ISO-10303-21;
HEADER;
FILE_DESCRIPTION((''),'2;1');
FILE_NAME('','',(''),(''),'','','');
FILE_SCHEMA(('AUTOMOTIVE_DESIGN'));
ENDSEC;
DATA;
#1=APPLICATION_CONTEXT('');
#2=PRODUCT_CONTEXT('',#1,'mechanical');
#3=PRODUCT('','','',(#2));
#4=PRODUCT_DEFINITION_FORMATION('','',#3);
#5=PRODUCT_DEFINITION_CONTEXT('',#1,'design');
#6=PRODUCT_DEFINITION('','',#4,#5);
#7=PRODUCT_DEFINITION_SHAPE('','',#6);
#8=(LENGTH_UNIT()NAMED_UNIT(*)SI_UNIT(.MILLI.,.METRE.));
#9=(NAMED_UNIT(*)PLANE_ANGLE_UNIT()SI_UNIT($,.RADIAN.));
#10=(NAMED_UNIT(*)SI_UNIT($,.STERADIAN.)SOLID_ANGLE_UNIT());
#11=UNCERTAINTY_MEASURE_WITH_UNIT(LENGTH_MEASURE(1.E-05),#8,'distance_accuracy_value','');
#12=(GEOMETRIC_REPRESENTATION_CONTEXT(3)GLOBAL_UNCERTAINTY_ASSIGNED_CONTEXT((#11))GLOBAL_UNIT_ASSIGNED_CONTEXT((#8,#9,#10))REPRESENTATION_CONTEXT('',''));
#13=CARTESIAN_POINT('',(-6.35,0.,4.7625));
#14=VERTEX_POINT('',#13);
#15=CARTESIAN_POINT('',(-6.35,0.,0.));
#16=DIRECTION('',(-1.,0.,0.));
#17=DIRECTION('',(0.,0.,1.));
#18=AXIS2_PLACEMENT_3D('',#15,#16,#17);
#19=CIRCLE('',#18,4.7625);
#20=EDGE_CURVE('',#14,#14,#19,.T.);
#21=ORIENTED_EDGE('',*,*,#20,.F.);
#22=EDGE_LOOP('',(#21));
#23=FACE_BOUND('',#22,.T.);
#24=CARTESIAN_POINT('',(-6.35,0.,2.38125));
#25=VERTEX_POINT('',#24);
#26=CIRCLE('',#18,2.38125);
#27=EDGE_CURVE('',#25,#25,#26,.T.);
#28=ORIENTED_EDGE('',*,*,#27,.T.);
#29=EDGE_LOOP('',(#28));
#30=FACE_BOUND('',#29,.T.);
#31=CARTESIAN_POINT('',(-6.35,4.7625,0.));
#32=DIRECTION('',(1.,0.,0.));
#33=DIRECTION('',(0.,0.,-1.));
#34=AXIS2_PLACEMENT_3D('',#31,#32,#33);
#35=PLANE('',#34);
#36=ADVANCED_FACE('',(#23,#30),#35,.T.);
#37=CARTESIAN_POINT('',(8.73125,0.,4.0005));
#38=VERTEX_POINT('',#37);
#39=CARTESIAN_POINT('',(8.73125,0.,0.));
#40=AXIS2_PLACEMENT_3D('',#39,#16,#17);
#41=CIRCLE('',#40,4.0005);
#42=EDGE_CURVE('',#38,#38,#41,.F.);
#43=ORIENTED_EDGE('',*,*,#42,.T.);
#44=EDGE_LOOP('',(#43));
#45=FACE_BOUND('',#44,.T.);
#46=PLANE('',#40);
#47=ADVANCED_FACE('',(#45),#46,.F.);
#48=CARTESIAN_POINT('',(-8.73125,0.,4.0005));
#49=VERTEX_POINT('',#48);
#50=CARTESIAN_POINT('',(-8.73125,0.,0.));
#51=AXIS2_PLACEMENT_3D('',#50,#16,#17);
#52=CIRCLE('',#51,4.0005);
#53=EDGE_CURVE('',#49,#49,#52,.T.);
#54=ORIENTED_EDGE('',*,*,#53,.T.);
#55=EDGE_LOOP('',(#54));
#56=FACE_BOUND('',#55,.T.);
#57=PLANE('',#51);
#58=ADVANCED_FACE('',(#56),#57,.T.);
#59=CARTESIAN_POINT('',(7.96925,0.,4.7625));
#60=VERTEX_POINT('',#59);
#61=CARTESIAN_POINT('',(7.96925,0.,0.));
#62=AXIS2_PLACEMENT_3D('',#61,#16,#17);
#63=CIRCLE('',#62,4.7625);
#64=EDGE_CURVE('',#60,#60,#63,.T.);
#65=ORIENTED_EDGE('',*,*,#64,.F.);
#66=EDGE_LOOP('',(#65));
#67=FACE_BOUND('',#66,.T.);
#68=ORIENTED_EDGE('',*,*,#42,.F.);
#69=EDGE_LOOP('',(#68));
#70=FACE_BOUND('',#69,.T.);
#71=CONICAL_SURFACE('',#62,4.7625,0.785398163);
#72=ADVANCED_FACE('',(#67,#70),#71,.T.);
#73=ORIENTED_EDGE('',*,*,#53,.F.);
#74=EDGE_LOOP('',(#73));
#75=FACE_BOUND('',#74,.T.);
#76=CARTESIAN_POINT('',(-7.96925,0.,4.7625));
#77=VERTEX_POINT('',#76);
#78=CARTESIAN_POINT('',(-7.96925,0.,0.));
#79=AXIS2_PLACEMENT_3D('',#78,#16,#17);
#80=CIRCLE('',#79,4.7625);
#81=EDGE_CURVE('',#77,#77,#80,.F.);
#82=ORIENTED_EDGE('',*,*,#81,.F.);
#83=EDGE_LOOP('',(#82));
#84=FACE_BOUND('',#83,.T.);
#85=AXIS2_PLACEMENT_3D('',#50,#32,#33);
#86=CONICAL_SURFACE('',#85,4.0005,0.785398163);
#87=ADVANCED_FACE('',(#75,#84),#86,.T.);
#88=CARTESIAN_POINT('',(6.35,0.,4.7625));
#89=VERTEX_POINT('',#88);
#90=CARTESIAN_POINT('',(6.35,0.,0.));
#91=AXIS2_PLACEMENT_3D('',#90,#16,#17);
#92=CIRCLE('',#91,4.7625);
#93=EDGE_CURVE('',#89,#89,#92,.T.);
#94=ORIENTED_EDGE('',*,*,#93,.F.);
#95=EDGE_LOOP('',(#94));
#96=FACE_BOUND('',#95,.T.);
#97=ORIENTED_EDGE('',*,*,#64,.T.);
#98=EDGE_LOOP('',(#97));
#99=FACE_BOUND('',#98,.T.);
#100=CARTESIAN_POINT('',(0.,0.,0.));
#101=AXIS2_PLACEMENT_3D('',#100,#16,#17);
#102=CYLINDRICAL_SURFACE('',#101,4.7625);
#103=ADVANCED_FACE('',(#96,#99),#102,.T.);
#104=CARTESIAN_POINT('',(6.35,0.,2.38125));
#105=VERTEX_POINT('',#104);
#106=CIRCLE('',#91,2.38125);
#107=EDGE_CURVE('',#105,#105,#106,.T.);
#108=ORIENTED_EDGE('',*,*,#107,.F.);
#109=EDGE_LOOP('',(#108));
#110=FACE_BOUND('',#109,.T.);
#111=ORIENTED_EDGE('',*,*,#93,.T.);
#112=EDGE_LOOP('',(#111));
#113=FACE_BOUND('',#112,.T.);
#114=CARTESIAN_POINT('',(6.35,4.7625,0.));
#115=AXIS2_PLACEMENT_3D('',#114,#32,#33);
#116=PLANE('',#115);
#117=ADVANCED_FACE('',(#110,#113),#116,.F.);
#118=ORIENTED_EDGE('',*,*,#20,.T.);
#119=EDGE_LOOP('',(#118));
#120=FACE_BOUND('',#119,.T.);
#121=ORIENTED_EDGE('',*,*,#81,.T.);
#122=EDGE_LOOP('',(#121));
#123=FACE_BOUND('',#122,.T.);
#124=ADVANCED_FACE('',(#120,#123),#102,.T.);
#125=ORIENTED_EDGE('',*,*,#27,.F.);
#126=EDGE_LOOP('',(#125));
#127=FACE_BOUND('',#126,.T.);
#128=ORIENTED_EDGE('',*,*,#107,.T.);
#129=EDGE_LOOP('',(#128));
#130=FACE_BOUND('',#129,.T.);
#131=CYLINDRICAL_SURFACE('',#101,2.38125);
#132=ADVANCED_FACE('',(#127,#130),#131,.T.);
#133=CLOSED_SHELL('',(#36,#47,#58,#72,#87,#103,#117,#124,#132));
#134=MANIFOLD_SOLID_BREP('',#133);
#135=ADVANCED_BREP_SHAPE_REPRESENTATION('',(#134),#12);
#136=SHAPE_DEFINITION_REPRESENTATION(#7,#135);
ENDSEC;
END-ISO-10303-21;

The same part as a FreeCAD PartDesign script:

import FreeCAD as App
import Part
import Sketcher
from FreeCAD import Vector
Q = App.Units.Quantity


def edges_at(feature, points):
    """Names of the edges that pass closest to the given points."""
    edges = feature.Shape.Edges
    near = lambda p: min(range(len(edges)), key=lambda i: edges[i].distToShape(Part.Vertex(*p))[0])
    return sorted({f"Edge{near(p) + 1}" for p in points})

doc = App.newDocument("Part")
body = doc.addObject("PartDesign::Body", "Body")

# Sketch on XY plane
sketch1 = body.newObject("Sketcher::SketchObject", "Sketch")
sketch1.AttachmentSupport = (doc.getObject("XY_Plane"), [""])
sketch1.MapMode = "FlatFace"
sketch1.addGeometry([
    Part.LineSegment(Vector(8.73125, 0, 0), Vector(8.73125, 4.7625, 0)),  # 0
    Part.LineSegment(Vector(8.73125, 4.7625, 0), Vector(6.35, 4.7625, 0)),  # 1
    Part.LineSegment(Vector(6.35, 4.7625, 0), Vector(6.35, 2.38125, 0)),  # 2
    Part.LineSegment(Vector(6.35, 2.38125, 0), Vector(-6.35, 2.38125, 0)),  # 3
    Part.LineSegment(Vector(-6.35, 2.38125, 0), Vector(-6.35, 4.7625, 0)),  # 4
    Part.LineSegment(Vector(-6.35, 4.7625, 0), Vector(-8.73125, 4.7625, 0)),  # 5
    Part.LineSegment(Vector(-8.73125, 4.7625, 0), Vector(-8.73125, 0, 0)),  # 6
    Part.LineSegment(Vector(-8.73125, 0, 0), Vector(8.73125, 0, 0)),  # 7
], False)
sketch1.addConstraint([
    Sketcher.Constraint("Coincident", 0, 2, 1, 1),
    Sketcher.Constraint("Coincident", 1, 2, 2, 1),
    Sketcher.Constraint("Coincident", 2, 2, 3, 1),
    Sketcher.Constraint("Coincident", 3, 2, 4, 1),
    Sketcher.Constraint("Coincident", 4, 2, 5, 1),
    Sketcher.Constraint("Coincident", 5, 2, 6, 1),
    Sketcher.Constraint("Coincident", 6, 2, 7, 1),
    Sketcher.Constraint("Coincident", 7, 2, 0, 1),
    Sketcher.Constraint("Vertical", 0),
    Sketcher.Constraint("Horizontal", 1),
    Sketcher.Constraint("Vertical", 2),
    Sketcher.Constraint("Horizontal", 3),
    Sketcher.Constraint("Vertical", 4),
    Sketcher.Constraint("Horizontal", 5),
    Sketcher.Constraint("Vertical", 6),
    Sketcher.Constraint("Horizontal", 7),
    Sketcher.Constraint("Symmetric", 6, 2, 7, 2, -1, 1),
    Sketcher.Constraint("Symmetric", 1, 2, 4, 2, -2),
    Sketcher.Constraint("Equal", 5, 2),
    Sketcher.Constraint("DistanceX", 3, 2, 3, 1, Q("0.5 in")),
    Sketcher.Constraint("DistanceX", 1, 2, 1, 1, Q("0.09375 in")),
    Sketcher.Constraint("DistanceY", 0, 1, 0, 2, Q("0.1875 in")),
])
revolution = body.newObject("PartDesign::Revolution", "Revolution")
revolution.Profile = sketch1
revolution.ReferenceAxis = (sketch1, ["H_Axis"])
revolution.Angle = 360
doc.recompute()

chamfer = body.newObject("PartDesign::Chamfer", "Chamfer")
chamfer.Base = (revolution, edges_at(revolution, [(8.731, -4.763, 0), (-8.731, -4.763, 0)]))
chamfer.Size = Q("0.03 in")

doc.recompute()
